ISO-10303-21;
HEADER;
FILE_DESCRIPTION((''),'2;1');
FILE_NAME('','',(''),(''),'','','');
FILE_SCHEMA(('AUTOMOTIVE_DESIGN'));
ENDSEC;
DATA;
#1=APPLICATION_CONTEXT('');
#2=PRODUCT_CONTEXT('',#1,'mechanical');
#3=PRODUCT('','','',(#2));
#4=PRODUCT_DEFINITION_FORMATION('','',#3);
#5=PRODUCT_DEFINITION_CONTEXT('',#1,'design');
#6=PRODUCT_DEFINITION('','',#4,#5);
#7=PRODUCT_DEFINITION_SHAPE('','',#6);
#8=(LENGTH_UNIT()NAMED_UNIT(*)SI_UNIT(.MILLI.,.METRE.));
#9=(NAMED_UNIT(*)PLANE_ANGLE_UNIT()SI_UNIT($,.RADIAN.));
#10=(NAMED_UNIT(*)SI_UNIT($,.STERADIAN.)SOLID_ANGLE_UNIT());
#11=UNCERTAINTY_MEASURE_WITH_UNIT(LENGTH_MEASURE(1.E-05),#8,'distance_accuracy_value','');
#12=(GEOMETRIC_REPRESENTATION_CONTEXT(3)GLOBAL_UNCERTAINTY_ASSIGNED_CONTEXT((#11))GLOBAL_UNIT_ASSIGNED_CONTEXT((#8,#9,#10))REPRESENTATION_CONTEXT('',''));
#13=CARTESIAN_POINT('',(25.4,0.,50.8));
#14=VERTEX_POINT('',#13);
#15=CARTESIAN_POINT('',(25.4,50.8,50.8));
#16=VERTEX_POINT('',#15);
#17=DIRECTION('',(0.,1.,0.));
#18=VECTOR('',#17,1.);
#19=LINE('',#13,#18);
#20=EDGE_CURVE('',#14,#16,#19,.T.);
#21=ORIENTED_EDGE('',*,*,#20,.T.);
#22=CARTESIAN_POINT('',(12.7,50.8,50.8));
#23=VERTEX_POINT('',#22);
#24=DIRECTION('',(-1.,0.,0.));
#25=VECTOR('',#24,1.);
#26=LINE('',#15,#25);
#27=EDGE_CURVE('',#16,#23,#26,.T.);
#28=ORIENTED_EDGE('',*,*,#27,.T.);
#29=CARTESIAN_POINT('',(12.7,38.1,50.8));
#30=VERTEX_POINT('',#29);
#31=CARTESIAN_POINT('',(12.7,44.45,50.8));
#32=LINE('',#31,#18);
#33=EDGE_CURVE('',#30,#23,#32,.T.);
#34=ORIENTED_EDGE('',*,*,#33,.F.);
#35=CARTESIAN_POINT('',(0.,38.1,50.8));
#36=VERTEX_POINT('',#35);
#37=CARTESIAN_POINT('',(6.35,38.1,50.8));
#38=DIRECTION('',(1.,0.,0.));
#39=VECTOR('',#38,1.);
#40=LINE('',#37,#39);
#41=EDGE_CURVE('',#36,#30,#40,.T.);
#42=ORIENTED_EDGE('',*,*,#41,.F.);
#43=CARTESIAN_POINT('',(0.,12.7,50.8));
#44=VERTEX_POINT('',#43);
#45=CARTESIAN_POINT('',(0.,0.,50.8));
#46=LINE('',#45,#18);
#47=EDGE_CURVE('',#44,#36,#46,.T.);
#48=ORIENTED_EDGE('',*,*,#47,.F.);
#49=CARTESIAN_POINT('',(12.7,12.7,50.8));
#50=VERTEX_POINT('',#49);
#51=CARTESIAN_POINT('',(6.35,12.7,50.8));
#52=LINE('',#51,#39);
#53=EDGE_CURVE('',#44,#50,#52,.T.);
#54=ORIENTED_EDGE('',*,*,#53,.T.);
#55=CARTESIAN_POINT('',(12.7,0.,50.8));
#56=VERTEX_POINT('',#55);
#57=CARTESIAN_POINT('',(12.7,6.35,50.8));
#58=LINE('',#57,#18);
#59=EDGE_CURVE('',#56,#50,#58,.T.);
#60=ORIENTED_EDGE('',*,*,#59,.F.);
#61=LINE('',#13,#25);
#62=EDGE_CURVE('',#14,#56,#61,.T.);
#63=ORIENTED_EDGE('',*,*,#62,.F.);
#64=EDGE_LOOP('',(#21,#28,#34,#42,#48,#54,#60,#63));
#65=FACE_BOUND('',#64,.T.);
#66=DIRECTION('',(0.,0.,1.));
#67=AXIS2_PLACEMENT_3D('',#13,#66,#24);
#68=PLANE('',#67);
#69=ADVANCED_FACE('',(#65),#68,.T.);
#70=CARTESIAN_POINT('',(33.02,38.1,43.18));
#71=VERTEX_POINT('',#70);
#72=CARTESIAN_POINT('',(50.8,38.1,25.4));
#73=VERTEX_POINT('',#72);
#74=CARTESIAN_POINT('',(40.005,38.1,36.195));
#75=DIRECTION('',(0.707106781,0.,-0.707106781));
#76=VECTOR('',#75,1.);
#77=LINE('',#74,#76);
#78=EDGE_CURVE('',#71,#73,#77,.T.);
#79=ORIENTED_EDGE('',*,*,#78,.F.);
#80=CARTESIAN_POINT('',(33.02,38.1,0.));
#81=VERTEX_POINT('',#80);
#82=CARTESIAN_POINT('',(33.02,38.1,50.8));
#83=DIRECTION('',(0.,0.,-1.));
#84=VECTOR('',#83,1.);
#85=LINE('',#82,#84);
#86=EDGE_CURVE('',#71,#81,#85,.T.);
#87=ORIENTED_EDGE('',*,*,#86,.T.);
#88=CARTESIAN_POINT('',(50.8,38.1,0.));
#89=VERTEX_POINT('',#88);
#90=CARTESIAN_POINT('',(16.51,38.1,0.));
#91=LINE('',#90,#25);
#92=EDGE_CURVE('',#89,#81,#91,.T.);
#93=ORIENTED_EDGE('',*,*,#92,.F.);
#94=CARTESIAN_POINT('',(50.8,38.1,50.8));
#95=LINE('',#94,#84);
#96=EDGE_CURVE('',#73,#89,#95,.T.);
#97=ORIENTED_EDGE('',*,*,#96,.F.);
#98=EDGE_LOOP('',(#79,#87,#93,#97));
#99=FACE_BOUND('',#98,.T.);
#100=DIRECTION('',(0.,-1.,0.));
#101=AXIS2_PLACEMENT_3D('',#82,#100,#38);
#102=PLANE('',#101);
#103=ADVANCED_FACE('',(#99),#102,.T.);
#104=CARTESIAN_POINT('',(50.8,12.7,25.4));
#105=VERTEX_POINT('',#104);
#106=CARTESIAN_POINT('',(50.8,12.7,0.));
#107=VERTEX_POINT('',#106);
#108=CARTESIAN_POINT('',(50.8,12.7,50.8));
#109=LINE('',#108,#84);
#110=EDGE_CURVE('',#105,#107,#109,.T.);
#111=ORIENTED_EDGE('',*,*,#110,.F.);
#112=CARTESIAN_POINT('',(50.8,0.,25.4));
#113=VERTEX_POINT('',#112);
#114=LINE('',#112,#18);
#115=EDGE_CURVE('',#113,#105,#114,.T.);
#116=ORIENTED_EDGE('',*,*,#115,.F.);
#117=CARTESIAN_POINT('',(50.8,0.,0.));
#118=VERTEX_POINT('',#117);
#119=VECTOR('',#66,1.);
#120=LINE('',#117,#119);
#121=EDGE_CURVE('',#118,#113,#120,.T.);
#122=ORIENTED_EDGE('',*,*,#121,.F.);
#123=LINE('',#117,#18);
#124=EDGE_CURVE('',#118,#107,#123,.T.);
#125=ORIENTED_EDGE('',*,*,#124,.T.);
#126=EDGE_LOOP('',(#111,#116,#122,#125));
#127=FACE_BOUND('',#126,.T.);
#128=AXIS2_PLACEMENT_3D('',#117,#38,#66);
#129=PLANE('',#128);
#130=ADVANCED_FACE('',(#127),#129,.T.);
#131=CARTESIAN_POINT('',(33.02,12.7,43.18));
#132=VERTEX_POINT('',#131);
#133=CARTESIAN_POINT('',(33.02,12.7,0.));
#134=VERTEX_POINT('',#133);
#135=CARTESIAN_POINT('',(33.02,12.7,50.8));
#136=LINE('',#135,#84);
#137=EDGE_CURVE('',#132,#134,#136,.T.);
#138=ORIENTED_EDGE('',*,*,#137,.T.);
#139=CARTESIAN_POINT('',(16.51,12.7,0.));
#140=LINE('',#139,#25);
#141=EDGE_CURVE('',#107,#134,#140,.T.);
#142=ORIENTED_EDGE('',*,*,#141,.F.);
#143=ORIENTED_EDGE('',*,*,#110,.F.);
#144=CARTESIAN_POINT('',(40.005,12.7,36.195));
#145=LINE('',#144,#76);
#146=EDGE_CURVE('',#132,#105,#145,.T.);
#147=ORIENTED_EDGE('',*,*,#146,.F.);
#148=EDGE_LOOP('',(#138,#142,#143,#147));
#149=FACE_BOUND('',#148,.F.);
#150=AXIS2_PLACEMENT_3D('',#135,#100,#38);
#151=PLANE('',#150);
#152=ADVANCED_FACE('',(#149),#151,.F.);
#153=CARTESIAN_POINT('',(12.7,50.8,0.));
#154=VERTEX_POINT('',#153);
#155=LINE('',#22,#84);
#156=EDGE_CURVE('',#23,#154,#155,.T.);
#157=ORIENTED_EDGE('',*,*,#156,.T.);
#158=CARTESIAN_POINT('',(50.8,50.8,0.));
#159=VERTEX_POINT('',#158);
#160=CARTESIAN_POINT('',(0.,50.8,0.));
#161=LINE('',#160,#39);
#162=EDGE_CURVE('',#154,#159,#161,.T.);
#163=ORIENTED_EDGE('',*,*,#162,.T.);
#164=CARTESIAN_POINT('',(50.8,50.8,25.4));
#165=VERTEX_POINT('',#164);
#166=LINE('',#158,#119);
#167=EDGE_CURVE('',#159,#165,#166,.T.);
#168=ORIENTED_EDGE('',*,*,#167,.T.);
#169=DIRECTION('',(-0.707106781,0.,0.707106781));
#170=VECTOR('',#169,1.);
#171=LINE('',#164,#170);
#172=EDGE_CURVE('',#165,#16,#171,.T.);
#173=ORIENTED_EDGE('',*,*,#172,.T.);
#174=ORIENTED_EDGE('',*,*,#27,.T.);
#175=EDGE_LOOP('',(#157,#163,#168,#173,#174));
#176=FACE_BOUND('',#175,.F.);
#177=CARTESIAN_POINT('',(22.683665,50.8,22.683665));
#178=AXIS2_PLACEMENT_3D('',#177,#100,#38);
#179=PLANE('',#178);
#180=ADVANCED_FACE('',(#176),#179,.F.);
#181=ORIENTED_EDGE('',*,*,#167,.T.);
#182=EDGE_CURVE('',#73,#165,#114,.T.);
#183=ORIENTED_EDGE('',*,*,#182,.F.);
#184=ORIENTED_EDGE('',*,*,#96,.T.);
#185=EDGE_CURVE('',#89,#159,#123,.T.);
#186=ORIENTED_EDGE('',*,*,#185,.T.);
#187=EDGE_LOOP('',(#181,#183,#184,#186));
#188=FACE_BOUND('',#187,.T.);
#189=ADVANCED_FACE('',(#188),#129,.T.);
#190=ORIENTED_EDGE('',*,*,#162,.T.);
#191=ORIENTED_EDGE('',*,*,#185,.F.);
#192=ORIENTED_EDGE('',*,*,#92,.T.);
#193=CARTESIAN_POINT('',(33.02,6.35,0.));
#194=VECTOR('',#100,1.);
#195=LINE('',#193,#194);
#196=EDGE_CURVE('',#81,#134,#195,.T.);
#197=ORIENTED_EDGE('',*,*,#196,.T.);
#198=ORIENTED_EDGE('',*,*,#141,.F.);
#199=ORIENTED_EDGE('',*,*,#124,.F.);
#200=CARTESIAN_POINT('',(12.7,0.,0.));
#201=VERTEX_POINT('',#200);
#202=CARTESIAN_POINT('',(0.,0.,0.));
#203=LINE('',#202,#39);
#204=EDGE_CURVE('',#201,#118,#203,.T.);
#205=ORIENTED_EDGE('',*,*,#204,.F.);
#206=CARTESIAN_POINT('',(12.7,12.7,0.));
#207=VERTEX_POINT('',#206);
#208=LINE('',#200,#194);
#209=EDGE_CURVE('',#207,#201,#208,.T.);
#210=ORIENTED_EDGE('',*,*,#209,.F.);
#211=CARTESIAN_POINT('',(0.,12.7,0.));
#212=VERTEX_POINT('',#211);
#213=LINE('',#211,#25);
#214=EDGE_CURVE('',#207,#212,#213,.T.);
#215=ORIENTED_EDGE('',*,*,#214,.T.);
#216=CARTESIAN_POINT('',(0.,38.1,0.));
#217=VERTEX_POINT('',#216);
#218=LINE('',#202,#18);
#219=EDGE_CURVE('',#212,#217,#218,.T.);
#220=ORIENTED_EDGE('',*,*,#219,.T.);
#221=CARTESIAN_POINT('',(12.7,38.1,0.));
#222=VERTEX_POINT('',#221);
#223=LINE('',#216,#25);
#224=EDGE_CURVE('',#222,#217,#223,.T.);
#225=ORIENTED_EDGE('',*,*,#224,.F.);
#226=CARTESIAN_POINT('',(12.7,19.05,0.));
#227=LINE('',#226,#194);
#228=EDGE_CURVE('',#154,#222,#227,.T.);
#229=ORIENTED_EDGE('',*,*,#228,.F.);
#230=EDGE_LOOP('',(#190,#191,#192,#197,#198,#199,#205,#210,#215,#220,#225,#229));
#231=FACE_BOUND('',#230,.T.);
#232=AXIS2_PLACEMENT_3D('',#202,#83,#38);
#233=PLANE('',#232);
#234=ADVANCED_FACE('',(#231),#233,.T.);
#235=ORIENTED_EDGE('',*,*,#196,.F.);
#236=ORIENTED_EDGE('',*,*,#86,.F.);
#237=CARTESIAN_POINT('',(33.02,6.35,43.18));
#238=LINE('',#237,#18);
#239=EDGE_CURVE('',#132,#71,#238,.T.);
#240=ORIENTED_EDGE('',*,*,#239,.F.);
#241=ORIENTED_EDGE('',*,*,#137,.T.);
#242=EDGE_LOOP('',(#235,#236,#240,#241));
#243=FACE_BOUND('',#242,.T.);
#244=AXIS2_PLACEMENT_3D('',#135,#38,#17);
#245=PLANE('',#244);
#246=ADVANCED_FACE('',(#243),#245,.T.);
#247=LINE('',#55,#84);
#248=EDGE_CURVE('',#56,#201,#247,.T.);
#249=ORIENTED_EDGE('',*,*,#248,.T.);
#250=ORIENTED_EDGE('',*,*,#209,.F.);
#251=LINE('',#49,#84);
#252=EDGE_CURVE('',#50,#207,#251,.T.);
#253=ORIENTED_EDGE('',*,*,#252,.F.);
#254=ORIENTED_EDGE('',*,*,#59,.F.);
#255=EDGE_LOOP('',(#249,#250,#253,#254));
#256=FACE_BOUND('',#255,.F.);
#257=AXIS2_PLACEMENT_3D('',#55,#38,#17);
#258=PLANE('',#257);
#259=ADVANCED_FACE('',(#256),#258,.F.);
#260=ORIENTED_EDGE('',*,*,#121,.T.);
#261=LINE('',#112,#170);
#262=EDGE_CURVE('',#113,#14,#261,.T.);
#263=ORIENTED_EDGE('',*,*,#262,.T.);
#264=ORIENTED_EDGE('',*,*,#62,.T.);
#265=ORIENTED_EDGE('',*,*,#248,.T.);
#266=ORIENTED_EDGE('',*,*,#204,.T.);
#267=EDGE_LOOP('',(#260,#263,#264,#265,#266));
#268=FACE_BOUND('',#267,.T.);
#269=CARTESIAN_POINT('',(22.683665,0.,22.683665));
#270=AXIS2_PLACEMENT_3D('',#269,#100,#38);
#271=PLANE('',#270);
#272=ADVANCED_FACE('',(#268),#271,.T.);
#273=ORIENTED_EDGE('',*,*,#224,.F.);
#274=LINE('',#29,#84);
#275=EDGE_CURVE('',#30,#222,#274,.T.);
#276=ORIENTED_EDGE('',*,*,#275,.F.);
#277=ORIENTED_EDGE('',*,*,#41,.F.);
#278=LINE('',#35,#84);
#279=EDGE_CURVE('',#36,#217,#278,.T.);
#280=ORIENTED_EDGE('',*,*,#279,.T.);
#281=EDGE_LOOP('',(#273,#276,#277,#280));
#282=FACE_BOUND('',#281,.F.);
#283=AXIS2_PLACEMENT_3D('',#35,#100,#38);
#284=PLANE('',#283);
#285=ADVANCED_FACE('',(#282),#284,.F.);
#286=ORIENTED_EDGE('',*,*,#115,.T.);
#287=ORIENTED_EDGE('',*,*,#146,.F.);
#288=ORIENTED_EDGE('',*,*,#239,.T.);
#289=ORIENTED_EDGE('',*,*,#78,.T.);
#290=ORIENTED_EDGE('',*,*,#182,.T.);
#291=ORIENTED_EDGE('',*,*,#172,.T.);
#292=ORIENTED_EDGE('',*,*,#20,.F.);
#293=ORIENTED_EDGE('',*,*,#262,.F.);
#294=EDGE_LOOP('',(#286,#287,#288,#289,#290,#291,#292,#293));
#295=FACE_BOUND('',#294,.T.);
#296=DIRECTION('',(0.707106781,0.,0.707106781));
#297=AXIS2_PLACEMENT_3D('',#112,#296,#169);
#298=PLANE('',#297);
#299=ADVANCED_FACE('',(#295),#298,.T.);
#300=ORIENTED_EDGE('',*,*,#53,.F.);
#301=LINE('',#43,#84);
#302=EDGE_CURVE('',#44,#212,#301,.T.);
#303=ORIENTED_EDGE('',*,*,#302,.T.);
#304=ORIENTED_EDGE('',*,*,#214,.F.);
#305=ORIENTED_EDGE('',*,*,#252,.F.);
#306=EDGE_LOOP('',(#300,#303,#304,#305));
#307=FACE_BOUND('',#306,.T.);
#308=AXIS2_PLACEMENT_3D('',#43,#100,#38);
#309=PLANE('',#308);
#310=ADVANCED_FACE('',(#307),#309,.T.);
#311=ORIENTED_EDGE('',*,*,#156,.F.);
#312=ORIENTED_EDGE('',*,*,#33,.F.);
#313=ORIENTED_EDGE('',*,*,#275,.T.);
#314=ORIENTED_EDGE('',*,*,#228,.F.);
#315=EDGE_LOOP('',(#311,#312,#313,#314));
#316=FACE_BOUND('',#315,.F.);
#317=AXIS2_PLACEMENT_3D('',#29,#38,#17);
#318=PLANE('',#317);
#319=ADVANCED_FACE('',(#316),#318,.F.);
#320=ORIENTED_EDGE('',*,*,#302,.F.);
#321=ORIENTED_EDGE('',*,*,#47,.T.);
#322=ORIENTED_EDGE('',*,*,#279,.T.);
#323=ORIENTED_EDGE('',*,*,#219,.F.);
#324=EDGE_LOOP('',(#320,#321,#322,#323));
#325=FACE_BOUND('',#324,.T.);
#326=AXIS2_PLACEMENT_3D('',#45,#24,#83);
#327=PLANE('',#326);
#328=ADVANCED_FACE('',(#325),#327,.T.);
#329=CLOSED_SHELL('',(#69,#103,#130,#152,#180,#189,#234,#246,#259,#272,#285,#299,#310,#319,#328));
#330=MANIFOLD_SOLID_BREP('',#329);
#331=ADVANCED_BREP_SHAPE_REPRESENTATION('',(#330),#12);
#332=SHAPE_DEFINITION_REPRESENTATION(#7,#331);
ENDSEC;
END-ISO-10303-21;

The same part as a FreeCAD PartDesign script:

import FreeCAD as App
import Part
import Sketcher
Q = App.Units.Quantity


def add_polygon(sketch, points):
    """Adds a closed chain of lines whose ends are joined by coincident constraints."""
    first, n = sketch.GeometryCount, len(points)
    for a, b in zip(points, points[1:] + points[:1]):
        sketch.addGeometry(Part.LineSegment(App.Vector(*a, 0), App.Vector(*b, 0)), False)
    for i in range(n):
        sketch.addConstraint(Sketcher.Constraint("Coincident", first + i, 2, first + (i + 1) % n, 1))

doc = App.newDocument("Part")
body = doc.addObject("PartDesign::Body", "Body")

# Sketch on XZ plane
sketch1 = doc.addObject("Sketcher::SketchObject", "Sketch")
body.addObject(sketch1)
sketch1.AttachmentSupport = (doc.XZ_Plane, [""])
sketch1.MapMode = "FlatFace"
add_polygon(sketch1, [(0, 51), (0, 0), (51, 0), (51, 25), (25, 51)])  # lines 0-4
sketch1.addConstraint([
    Sketcher.Constraint("Vertical", 0),
    Sketcher.Constraint("Horizontal", 1),
    Sketcher.Constraint("Vertical", 2),
    Sketcher.Constraint("Horizontal", 4),
    Sketcher.Constraint("Coincident", 0, 2, -1, 1),
    Sketcher.Constraint("Equal", 1, 0),
    Sketcher.Constraint("Equal", 4, 2),
    Sketcher.Constraint("DistanceX", 1, 1, 1, 2, Q("2 in")),
    Sketcher.Constraint("DistanceX", 4, 2, 4, 1, Q("1 in")),
])
pad1 = doc.addObject("PartDesign::Pad", "Pad")
body.addObject(pad1)
pad1.Profile = sketch1
pad1.Length = Q("2 in")
pad1.Reversed = True

# Sketch on XY plane
sketch2 = doc.addObject("Sketcher::SketchObject", "Sketch001")
body.addObject(sketch2)
sketch2.AttachmentSupport = (doc.XY_Plane, [""])
sketch2.MapMode = "FlatFace"
sketch2.AttachmentOffset = App.Placement(App.Vector(0, 0, 2 * 25.4), App.Rotation())
add_polygon(sketch2, [(0, 51), (0, 38), (13, 38), (13, 51)])  # lines 0-3
add_polygon(sketch2, [(0, 13), (0, 0), (13, 0), (13, 13)])  # lines 4-7
sketch2.addConstraint([
    Sketcher.Constraint("Vertical", 0),
    Sketcher.Constraint("Horizontal", 1),
    Sketcher.Constraint("Vertical", 2),
    Sketcher.Constraint("Horizontal", 3),
    Sketcher.Constraint("Vertical", 4),
    Sketcher.Constraint("Horizontal", 5),
    Sketcher.Constraint("Vertical", 6),
    Sketcher.Constraint("Horizontal", 7),
    Sketcher.Constraint("Coincident", 4, 2, -1, 1),
    Sketcher.Constraint("PointOnObject", 0, 2, -2),
    Sketcher.Constraint("Vertical", 2, 2, 5, 2),
    Sketcher.Constraint("Equal", 7, 0),
    Sketcher.Constraint("Equal", 2, 4),
    Sketcher.Constraint("DistanceX", 1, 1, 1, 2, Q("0.5 in")),
    Sketcher.Constraint("DistanceY", -1, 1, 2, 2, Q("2 in")),
])
pocket1 = doc.addObject("PartDesign::Pocket", "Pocket")
body.addObject(pocket1)
pocket1.Profile = sketch2
pocket1.Type = "ThroughAll"

# Sketch on XY plane
sketch3 = doc.addObject("Sketcher::SketchObject", "Sketch002")
body.addObject(sketch3)
sketch3.AttachmentSupport = (doc.XY_Plane, [""])
sketch3.MapMode = "FlatFace"
sketch3.AttachmentOffset = App.Placement(App.Vector(0, 0, 2 * 25.4), App.Rotation())
add_polygon(sketch3, [(33, 38), (33, 13), (51, 13), (51, 38)])  # lines 0-3
sketch3.addConstraint([
    Sketcher.Constraint("Vertical", 0),
    Sketcher.Constraint("Horizontal", 1),
    Sketcher.Constraint("Vertical", 2),
    Sketcher.Constraint("Horizontal", 3),
    Sketcher.Constraint("DistanceY", 0, 2, 0, 1, Q("1 in")),
    Sketcher.Constraint("DistanceX", 1, 1, 1, 2, Q("0.7 in")),
    Sketcher.Constraint("DistanceX", -1, 1, 1, 2, Q("2 in")),
    Sketcher.Constraint("DistanceY", -1, 1, 0, 2, Q("0.5 in")),
])
pocket2 = doc.addObject("PartDesign::Pocket", "Pocket001")
body.addObject(pocket2)
pocket2.Profile = sketch3
pocket2.Type = "ThroughAll"

doc.recompute()
